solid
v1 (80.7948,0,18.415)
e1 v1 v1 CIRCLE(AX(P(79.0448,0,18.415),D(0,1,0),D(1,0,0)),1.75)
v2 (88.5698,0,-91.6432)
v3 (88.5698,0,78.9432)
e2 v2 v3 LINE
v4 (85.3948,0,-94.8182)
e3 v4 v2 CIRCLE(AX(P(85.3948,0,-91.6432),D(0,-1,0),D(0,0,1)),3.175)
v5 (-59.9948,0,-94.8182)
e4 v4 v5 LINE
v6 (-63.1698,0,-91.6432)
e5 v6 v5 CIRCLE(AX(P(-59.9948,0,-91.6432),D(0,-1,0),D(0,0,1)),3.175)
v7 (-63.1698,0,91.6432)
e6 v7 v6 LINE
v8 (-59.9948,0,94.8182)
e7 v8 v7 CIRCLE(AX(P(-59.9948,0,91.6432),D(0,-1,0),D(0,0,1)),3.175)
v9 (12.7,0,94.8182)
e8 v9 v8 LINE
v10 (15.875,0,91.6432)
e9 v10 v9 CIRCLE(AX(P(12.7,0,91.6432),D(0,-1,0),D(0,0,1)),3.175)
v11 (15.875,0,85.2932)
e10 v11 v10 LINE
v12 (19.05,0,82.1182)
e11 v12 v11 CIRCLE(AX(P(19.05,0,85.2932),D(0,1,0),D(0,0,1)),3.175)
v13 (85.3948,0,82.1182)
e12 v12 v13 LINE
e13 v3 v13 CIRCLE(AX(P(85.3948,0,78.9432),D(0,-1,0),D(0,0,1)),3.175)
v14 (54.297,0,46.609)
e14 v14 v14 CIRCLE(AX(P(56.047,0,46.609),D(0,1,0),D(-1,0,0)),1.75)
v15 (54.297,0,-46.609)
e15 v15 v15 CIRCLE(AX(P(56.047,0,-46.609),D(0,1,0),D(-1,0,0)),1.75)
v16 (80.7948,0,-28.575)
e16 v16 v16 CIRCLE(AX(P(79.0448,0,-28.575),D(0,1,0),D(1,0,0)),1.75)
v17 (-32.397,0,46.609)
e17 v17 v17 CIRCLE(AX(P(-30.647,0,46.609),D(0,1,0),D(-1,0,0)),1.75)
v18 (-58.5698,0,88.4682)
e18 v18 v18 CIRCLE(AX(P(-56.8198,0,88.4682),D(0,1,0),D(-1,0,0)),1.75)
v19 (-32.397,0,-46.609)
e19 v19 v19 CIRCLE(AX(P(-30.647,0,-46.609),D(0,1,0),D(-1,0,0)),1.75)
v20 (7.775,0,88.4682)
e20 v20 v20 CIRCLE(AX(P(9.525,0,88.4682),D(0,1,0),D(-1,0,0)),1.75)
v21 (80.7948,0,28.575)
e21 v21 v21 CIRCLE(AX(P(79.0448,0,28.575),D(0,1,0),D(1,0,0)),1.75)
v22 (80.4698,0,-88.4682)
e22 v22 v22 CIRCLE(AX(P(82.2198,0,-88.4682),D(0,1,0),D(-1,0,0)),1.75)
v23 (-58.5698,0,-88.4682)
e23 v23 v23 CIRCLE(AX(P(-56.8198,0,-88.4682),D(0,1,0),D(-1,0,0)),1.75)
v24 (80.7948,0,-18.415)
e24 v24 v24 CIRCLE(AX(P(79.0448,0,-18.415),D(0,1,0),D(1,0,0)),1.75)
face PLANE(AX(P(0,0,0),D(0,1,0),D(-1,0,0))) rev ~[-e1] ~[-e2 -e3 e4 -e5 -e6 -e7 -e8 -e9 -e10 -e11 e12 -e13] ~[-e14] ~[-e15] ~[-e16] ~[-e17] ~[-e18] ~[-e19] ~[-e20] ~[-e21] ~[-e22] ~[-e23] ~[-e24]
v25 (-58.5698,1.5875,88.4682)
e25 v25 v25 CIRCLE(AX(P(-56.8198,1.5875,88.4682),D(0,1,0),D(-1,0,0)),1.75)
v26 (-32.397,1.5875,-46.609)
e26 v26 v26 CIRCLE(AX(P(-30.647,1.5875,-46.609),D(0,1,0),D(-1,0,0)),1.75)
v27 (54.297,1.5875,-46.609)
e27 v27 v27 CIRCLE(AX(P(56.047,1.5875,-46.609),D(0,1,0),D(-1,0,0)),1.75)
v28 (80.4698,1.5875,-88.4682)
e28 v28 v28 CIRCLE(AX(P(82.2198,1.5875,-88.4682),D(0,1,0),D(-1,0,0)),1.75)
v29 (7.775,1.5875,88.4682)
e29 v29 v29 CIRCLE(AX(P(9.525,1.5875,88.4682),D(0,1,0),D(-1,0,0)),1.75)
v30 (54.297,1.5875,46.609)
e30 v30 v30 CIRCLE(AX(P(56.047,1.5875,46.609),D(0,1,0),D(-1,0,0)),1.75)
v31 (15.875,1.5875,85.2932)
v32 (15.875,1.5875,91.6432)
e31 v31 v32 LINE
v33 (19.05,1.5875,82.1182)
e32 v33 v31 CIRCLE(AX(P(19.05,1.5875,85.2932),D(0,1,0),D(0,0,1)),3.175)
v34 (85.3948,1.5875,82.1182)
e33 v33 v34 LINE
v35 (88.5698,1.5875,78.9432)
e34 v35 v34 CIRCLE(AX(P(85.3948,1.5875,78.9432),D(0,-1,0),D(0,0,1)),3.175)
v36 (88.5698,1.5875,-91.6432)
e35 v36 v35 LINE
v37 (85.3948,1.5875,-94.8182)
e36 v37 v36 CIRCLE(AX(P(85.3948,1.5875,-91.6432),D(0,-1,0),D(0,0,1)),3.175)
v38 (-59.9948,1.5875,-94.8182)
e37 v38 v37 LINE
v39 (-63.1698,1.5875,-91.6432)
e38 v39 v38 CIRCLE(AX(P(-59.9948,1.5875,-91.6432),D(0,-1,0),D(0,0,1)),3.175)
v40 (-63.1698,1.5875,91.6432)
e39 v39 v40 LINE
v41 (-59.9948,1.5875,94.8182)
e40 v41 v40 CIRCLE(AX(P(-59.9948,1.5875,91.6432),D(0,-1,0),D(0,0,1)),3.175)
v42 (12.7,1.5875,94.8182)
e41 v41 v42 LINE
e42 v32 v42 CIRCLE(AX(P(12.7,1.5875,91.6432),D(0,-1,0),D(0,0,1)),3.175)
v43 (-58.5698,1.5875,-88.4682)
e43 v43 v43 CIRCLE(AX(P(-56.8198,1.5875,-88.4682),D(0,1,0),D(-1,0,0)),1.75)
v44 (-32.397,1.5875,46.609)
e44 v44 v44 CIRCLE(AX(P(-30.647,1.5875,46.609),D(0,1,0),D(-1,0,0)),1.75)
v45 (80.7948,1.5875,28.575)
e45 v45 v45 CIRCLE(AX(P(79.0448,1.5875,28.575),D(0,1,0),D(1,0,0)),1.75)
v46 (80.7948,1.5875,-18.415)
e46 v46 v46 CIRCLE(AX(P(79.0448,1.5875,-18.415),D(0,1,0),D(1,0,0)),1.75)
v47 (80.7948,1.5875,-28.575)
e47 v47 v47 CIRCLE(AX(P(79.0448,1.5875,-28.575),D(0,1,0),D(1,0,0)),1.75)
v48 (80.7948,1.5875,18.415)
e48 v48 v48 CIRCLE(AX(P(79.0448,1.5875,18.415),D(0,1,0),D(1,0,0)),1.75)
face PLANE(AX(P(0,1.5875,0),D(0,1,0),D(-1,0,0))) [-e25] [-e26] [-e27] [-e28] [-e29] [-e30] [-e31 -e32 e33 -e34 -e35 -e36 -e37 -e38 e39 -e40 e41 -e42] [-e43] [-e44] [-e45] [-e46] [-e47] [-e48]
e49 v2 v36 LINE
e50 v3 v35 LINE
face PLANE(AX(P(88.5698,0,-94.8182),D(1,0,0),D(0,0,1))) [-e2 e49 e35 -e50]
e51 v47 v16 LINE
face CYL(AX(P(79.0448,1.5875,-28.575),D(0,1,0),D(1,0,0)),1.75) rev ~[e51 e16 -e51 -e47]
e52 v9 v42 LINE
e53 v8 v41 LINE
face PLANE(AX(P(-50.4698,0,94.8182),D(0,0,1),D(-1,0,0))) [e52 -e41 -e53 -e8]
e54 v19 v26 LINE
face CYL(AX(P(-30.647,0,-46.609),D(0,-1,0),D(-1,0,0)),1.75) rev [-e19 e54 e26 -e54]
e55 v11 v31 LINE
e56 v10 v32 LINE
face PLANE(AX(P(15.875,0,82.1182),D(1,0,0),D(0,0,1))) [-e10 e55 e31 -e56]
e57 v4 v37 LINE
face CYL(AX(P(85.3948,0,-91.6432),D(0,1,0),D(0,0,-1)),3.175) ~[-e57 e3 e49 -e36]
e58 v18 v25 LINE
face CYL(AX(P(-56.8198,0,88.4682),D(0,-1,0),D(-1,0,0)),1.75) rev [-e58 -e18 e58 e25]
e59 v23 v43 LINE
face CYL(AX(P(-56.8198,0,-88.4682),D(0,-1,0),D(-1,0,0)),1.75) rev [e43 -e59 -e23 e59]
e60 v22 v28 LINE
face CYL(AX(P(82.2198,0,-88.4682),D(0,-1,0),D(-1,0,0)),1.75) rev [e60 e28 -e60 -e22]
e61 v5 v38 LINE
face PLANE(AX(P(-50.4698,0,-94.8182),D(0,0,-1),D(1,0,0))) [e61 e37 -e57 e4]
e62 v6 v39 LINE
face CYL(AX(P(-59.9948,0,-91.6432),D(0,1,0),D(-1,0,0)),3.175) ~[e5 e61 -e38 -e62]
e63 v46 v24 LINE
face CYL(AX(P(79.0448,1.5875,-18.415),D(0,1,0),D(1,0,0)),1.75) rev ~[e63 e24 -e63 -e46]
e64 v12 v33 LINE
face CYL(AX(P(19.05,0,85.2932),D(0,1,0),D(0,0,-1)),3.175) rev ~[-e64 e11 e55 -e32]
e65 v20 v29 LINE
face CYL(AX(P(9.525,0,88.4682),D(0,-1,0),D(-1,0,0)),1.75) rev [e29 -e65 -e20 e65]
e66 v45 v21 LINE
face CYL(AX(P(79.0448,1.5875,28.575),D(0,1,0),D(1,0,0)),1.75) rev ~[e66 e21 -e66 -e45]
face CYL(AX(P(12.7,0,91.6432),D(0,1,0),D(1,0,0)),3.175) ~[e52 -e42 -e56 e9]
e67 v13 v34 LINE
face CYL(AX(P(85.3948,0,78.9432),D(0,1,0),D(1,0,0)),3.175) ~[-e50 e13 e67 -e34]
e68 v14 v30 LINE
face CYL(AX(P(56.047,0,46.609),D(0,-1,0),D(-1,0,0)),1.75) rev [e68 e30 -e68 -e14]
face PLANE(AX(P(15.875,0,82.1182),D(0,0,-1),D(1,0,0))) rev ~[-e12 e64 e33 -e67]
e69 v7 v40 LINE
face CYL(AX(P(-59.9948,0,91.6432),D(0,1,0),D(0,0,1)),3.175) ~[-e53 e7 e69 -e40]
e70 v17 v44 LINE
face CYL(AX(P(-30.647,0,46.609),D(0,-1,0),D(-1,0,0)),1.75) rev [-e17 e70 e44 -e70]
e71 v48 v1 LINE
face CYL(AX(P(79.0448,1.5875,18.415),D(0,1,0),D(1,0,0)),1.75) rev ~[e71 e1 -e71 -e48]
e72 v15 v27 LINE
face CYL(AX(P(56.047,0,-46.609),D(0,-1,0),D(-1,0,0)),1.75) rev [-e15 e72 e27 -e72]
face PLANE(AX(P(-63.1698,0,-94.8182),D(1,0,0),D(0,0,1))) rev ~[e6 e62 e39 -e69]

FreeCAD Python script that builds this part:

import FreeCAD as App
import Part
import Sketcher
Q = App.Units.Quantity


def edges_at(feature, points):
    """Names of the edges that pass closest to the given points."""
    edges = feature.Shape.Edges
    near = lambda p: min(range(len(edges)), key=lambda i: edges[i].distToShape(Part.Vertex(*p))[0])
    return sorted({f"Edge{near(p) + 1}" for p in points})

doc = App.newDocument("Part")
body = doc.addObject("PartDesign::Body", "Body")

# Sketch on XZ plane
sketch1 = body.newObject("Sketcher::SketchObject", "Sketch")
sketch1.AttachmentSupport = (doc.getObject("XZ_Plane"), [""])
sketch1.MapMode = "FlatFace"
sketch1.addGeometry([
    Part.LineSegment(App.Vector(88.6, -94.8, 0), App.Vector(-63.2, -94.8, 0)),  # 0
    Part.LineSegment(App.Vector(-63.2, -94.8, 0), App.Vector(-63.2, 94.8, 0)),  # 1
    Part.LineSegment(App.Vector(-63.2, 94.8, 0), App.Vector(15.9, 94.8, 0)),  # 2
    Part.LineSegment(App.Vector(15.9, 94.8, 0), App.Vector(15.9, 82.1, 0)),  # 3
    Part.LineSegment(App.Vector(15.9, 82.1, 0), App.Vector(88.6, 82.1, 0)),  # 4
    Part.LineSegment(App.Vector(88.6, 82.1, 0), App.Vector(88.6, -94.8, 0)),  # 5
    Part.Circle(App.Vector(82.2, -88.5, 0), App.Vector(0, 0, 1), 1.8),  # 6
    Part.Circle(App.Vector(56, -46.6, 0), App.Vector(0, 0, 1), 1.8),  # 7
    Part.Circle(App.Vector(-56.8, -88.5, 0), App.Vector(0, 0, 1), 1.8),  # 8
    Part.Circle(App.Vector(-30.6, -46.6, 0), App.Vector(0, 0, 1), 1.8),  # 9
    Part.Circle(App.Vector(56, 46.6, 0), App.Vector(0, 0, 1), 1.8),  # 10
    Part.Circle(App.Vector(-30.6, 46.6, 0), App.Vector(0, 0, 1), 1.8),  # 11
    Part.Circle(App.Vector(9.5, 88.5, 0), App.Vector(0, 0, 1), 1.8),  # 12
    Part.Circle(App.Vector(-56.8, 88.5, 0), App.Vector(0, 0, 1), 1.8),  # 13
], False)
sketch1.addConstraint([
    Sketcher.Constraint("Coincident", 0, 2, 1, 1),
    Sketcher.Constraint("Coincident", 1, 2, 2, 1),
    Sketcher.Constraint("Coincident", 2, 2, 3, 1),
    Sketcher.Constraint("Coincident", 3, 2, 4, 1),
    Sketcher.Constraint("Coincident", 4, 2, 5, 1),
    Sketcher.Constraint("Coincident", 5, 2, 0, 1),
    Sketcher.Constraint("Horizontal", 0),
    Sketcher.Constraint("Vertical", 1),
    Sketcher.Constraint("Horizontal", 2),
    Sketcher.Constraint("Vertical", 3),
    Sketcher.Constraint("Horizontal", 4),
    Sketcher.Constraint("Vertical", 5),
    Sketcher.Constraint("Equal", 6, 7),
    Sketcher.Constraint("Equal", 7, 8),
    Sketcher.Constraint("Equal", 8, 9),
    Sketcher.Constraint("Equal", 9, 10),
    Sketcher.Constraint("Equal", 10, 11),
    Sketcher.Constraint("Equal", 11, 12),
    Sketcher.Constraint("Equal", 12, 13),
    Sketcher.Constraint("Symmetric", 7, 3, 10, 3, -1),
    Sketcher.Constraint("Symmetric", 9, 3, 11, 3, -1),
    Sketcher.Constraint("Symmetric", 8, 3, 13, 3, -1),
    Sketcher.Constraint("Horizontal", 6, 3, 8, 3),
    Sketcher.Constraint("Horizontal", 7, 3, 9, 3),
    Sketcher.Constraint("Horizontal", 12, 3, 13, 3),
    Sketcher.Constraint("DistanceY", 3, 2, 3, 1, Q("0.5 in")),
    Sketcher.Constraint("Diameter", 6, Q("0.1378 in")),
    Sketcher.Constraint("DistanceX", 0, 2, 0, 1, Q("5.974 in")),
    Sketcher.Constraint("DistanceX", 2, 1, 2, 2, Q("3.112 in")),
    Sketcher.Constraint("DistanceY", 1, 1, 1, 2, Q("7.466 in")),
    Sketcher.Constraint("DistanceY", 7, 3, 10, 3, Q("3.67 in")),
    Sketcher.Constraint("DistanceX", 0, 2, 8, 3, Q("0.25 in")),
    Sketcher.Constraint("DistanceY", 0, 2, 8, 3, Q("0.25 in")),
    Sketcher.Constraint("DistanceY", 13, 3, 1, 2, Q("0.25 in")),
    Sketcher.Constraint("DistanceX", 12, 3, 2, 2, Q("0.25 in")),
    Sketcher.Constraint("DistanceX", 6, 3, 5, 2, Q("0.25 in")),
    Sketcher.Constraint("DistanceX", -1, 1, 6, 3, Q("3.237 in")),
    Sketcher.Constraint("DistanceX", -1, 1, 7, 3, Q("56.047 mm")),
    Sketcher.Constraint("DistanceX", 9, 3, -1, 1, Q("30.647 mm")),
])
pad1 = body.newObject("PartDesign::Pad", "Pad")
pad1.Profile = sketch1
pad1.Length = Q("0.0625 in")
pad1.Reversed = True
doc.recompute()

fillet = body.newObject("PartDesign::Fillet", "Fillet")
fillet.Base = (pad1, edges_at(pad1, [
    (-63.17, 0.794, 94.818),
    (15.875, 0.794, 94.818),
    (15.875, 0.794, 82.118),
    (88.57, 0.794, 82.118),
    (88.57, 0.794, -94.818),
    (-63.17, 0.794, -94.818),
]))
fillet.Radius = Q("0.125 in")

# Sketch on XZ plane
sketch2 = body.newObject("Sketcher::SketchObject", "Sketch001")
sketch2.AttachmentSupport = (doc.getObject("XZ_Plane"), [""])
sketch2.MapMode = "FlatFace"
sketch2.AttachmentOffset = App.Placement(App.Vector(0, 0, -0.0625 * 25.4), App.Rotation())
sketch2.addGeometry([
    Part.Circle(App.Vector(79, 28.6, 0), App.Vector(0, 0, 1), 1.8),
    Part.Circle(App.Vector(79, -28.6, 0), App.Vector(0, 0, 1), 1.8),
    Part.Circle(App.Vector(79, 18.4, 0), App.Vector(0, 0, 1), 1.8),
    Part.Circle(App.Vector(79, -18.4, 0), App.Vector(0, 0, 1), 1.8),
], False)
sketch2.addConstraint([
    Sketcher.Constraint("Equal", 0, 1),
    Sketcher.Constraint("Equal", 1, 2),
    Sketcher.Constraint("Equal", 2, 3),
    Sketcher.Constraint("Symmetric", 0, 3, 1, 3, -1),
    Sketcher.Constraint("Symmetric", 2, 3, 3, 3, -1),
    Sketcher.Constraint("Vertical", 1, 3, 2, 3),
    Sketcher.Constraint("Diameter", 0, Q("0.1378 in")),
    Sketcher.Constraint("DistanceY", 2, 3, 0, 3, Q("0.4 in")),
    Sketcher.Constraint("DistanceY", 1, 3, 0, 3, Q("2.25 in")),
    Sketcher.Constraint("DistanceX", -1, 1, 0, 3, Q("3.112 in")),
])
pocket1 = body.newObject("PartDesign::Pocket", "Pocket")
pocket1.Profile = sketch2
pocket1.Length = Q("1 in")
pocket1.Reversed = True

doc.recompute()
